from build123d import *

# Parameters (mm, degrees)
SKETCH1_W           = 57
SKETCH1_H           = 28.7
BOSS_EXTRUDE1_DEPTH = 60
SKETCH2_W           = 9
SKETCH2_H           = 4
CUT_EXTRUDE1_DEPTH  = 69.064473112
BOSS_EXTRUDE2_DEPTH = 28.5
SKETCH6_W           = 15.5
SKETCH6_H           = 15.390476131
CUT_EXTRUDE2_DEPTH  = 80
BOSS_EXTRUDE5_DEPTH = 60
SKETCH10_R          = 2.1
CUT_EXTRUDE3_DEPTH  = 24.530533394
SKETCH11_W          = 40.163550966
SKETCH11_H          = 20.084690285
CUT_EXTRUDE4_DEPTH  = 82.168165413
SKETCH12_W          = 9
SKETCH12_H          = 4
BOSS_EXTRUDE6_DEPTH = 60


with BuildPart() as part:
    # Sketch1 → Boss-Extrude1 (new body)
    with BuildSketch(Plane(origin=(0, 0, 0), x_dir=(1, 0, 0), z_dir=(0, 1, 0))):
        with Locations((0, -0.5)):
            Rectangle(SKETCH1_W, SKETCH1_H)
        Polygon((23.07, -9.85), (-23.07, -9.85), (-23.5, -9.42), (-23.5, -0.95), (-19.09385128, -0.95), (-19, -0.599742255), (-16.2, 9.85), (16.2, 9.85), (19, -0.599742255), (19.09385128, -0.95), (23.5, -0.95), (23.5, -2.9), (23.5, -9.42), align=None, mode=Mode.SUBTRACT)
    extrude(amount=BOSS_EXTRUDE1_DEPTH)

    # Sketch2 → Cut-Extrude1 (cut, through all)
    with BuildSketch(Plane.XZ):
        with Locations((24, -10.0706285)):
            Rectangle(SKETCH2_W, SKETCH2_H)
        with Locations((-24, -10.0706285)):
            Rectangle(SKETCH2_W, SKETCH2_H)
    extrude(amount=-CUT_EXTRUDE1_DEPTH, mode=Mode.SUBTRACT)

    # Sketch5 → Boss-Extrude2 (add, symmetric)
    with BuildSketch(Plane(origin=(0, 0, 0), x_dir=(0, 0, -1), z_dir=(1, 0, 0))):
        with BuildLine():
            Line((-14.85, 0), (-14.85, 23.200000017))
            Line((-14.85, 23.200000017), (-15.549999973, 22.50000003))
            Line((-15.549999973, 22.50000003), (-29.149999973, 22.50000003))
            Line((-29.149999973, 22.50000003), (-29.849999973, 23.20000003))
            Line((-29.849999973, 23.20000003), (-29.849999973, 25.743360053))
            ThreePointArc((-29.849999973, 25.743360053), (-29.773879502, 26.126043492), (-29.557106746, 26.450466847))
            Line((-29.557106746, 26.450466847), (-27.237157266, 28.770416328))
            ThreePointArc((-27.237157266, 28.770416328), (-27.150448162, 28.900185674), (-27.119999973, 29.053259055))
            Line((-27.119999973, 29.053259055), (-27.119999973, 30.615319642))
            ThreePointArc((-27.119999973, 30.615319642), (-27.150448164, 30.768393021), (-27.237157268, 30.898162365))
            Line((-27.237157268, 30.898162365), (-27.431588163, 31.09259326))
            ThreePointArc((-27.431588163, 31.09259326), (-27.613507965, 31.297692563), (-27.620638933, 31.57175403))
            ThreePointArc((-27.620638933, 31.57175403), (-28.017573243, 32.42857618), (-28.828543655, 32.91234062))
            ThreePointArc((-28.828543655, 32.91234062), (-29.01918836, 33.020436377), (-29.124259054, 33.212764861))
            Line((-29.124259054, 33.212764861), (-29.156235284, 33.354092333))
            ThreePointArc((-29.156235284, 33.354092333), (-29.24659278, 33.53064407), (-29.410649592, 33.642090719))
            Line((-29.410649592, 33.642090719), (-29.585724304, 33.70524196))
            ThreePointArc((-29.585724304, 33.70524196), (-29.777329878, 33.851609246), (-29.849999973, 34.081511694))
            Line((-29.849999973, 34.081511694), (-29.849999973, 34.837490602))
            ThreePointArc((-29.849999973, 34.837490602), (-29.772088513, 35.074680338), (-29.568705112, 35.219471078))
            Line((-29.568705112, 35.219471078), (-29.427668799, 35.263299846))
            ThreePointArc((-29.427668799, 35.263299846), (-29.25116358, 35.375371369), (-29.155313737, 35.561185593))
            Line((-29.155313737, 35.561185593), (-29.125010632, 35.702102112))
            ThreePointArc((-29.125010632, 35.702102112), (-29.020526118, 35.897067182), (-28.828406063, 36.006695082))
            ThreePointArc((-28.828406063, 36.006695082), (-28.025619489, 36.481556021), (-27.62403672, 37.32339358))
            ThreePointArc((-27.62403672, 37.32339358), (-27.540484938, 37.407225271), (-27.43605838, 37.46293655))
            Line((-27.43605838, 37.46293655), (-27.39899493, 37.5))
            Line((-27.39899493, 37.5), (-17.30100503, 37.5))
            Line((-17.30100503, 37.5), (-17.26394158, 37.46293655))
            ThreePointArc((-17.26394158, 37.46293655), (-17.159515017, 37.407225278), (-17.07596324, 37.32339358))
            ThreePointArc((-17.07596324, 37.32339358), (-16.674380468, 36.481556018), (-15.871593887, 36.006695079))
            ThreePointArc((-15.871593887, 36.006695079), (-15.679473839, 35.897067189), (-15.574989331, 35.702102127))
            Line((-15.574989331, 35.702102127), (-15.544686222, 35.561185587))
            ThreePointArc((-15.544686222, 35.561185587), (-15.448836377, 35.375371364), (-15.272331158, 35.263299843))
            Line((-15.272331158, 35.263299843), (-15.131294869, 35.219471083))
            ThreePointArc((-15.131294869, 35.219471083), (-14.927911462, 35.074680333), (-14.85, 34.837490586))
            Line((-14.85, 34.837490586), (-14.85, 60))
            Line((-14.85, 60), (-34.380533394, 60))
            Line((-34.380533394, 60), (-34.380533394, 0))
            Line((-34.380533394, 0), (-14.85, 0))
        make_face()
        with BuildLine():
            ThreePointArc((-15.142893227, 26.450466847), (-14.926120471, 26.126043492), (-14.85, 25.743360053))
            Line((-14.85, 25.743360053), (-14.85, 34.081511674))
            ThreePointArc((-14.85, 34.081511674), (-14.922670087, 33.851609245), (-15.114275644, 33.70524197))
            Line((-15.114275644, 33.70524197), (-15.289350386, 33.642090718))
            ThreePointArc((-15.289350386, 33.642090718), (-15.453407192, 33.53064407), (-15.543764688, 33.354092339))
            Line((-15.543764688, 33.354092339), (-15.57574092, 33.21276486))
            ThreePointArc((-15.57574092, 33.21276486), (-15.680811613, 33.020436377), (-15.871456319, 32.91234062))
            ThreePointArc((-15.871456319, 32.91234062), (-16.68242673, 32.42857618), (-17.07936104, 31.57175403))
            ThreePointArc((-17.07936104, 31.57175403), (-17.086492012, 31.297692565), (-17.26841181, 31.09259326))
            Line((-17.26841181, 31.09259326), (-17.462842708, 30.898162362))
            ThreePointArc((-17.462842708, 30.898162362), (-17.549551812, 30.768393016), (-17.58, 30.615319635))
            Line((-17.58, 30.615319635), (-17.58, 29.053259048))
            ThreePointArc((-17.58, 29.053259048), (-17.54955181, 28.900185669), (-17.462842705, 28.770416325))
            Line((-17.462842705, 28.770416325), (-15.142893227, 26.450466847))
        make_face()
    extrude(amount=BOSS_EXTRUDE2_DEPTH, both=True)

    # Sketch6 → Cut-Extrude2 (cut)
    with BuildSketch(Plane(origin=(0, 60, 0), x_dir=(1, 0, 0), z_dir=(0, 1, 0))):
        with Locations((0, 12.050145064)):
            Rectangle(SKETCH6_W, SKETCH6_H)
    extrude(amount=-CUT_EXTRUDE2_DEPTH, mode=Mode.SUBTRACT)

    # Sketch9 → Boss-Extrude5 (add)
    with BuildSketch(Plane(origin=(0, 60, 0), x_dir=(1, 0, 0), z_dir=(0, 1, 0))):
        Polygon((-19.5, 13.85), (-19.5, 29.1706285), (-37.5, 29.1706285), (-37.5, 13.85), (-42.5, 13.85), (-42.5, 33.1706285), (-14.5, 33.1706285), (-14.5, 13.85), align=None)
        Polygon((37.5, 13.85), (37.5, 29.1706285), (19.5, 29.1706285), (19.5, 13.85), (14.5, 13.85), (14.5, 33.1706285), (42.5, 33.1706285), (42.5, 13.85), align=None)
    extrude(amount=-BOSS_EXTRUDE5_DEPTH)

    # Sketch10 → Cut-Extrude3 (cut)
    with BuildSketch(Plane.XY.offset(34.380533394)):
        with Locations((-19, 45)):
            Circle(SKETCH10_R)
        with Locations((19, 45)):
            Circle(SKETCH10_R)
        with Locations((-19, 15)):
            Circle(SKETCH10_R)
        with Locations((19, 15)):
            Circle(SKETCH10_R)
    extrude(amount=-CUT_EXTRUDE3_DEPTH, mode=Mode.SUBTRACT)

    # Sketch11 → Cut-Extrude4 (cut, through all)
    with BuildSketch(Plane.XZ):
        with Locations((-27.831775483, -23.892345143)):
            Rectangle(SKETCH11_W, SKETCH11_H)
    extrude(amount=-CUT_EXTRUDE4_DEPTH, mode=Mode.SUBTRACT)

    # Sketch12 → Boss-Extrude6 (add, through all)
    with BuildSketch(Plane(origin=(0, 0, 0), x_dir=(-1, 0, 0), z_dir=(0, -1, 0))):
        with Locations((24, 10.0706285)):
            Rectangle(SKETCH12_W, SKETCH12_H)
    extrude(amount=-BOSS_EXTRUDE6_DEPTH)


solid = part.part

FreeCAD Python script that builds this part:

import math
import FreeCAD as App
import Part
import Sketcher

V = App.Vector
Q = App.Units.Quantity

doc = App.newDocument("Part")
body = doc.addObject("PartDesign::Body", "Body")

# Sketch on XZ plane
sketch1 = body.newObject("Sketcher::SketchObject", "Sketch")
sketch1.AttachmentSupport = (doc.getObject("XZ_Plane"), [""])
sketch1.MapMode = "FlatFace"
sketch1.addGeometry([
    Part.LineSegment(V(-28.5, -13.85, 0), V(-28.5, 14.85, 0)),  # 0
    Part.LineSegment(V(-28.5, 14.85, 0), V(28.5, 14.85, 0)),  # 1
    Part.LineSegment(V(28.5, 14.85, 0), V(28.5, -13.85, 0)),  # 2
    Part.LineSegment(V(28.5, -13.85, 0), V(-28.5, -13.85, 0)),  # 3
    Part.LineSegment(V(23.5, 9.42, 0), V(23.07, 9.85, 0)),  # 4
    Part.LineSegment(V(23.07, 9.85, 0), V(-23.07, 9.85, 0)),  # 5
    Part.LineSegment(V(-23.07, 9.85, 0), V(-23.5, 9.42, 0)),  # 6
    Part.LineSegment(V(-23.5, 9.42, 0), V(-23.5, 0.95, 0)),  # 7
    Part.LineSegment(V(-23.5, 0.95, 0), V(-19.093851, 0.95, 0)),  # 8
    Part.LineSegment(V(-19.093851, 0.95, 0), V(-19, 0.599742, 0)),  # 9
    Part.LineSegment(V(-19, 0.599742, 0), V(-16.2, -9.85, 0)),  # 10
    Part.LineSegment(V(-16.2, -9.85, 0), V(16.2, -9.85, 0)),  # 11
    Part.LineSegment(V(16.2, -9.85, 0), V(19, 0.599742, 0)),  # 12
    Part.LineSegment(V(19, 0.599742, 0), V(19.093851, 0.95, 0)),  # 13
    Part.LineSegment(V(19.093851, 0.95, 0), V(23.5, 0.95, 0)),  # 14
    Part.LineSegment(V(23.5, 0.95, 0), V(23.5, 9.42, 0)),  # 15
], False)
sketch1.addConstraint([
    Sketcher.Constraint("Coincident", 0, 2, 1, 1),
    Sketcher.Constraint("Coincident", 1, 2, 2, 1),
    Sketcher.Constraint("Coincident", 2, 2, 3, 1),
    Sketcher.Constraint("Coincident", 3, 2, 0, 1),
    Sketcher.Constraint("Coincident", 4, 2, 5, 1),
    Sketcher.Constraint("Coincident", 5, 2, 6, 1),
    Sketcher.Constraint("Coincident", 6, 2, 7, 1),
    Sketcher.Constraint("Coincident", 7, 2, 8, 1),
    Sketcher.Constraint("Coincident", 8, 2, 9, 1),
    Sketcher.Constraint("Coincident", 9, 2, 10, 1),
    Sketcher.Constraint("Coincident", 10, 2, 11, 1),
    Sketcher.Constraint("Coincident", 11, 2, 12, 1),
    Sketcher.Constraint("Coincident", 12, 2, 13, 1),
    Sketcher.Constraint("Coincident", 13, 2, 14, 1),
    Sketcher.Constraint("Coincident", 14, 2, 15, 1),
    Sketcher.Constraint("Coincident", 15, 2, 4, 1),
    Sketcher.Constraint("Vertical", 0),
    Sketcher.Constraint("Horizontal", 1),
    Sketcher.Constraint("Vertical", 2),
    Sketcher.Constraint("Horizontal", 3),
    Sketcher.Constraint("Horizontal", 5),
    Sketcher.Constraint("Vertical", 7),
    Sketcher.Constraint("Horizontal", 8),
    Sketcher.Constraint("Horizontal", 11),
    Sketcher.Constraint("Horizontal", 14),
    Sketcher.Constraint("Vertical", 15),
    Sketcher.Constraint("Symmetric", 9, 2, 12, 2, -2),
    Sketcher.Constraint("Symmetric", 8, 2, 13, 2, -2),
    Sketcher.Constraint("Symmetric", 6, 2, 15, 2, -2),
    Sketcher.Constraint("Perpendicular", 4, 6),
    Sketcher.Constraint("Parallel", 9, 10),
    Sketcher.Constraint("Parallel", 12, 13),
    Sketcher.Constraint("Equal", 4, 6),
    Sketcher.Constraint("DistanceX", 1, 1, 1, 2, 57.0),
    Sketcher.Constraint("Angle", 9, Q("-75 deg")),
    Sketcher.Constraint("DistanceX", 11, 1, 11, 2, 32.4),
    Sketcher.Constraint("DistanceY", 0, 1, 0, 2, 28.7),
    Sketcher.Constraint("DistanceX", 9, 2, -1, 1, 19.0),
    Sketcher.Constraint("DistanceY", 4, 2, 1, 2, 5.0),
    Sketcher.Constraint("DistanceX", 0, 2, 6, 2, 5.0),
    Sketcher.Constraint("DistanceY", 3, 2, 10, 2, 4.0),
    Sketcher.Constraint("DistanceX", 14, 2, 1, 2, 5.0),
    Sketcher.Constraint("DistanceX", 5, 2, 5, 1, 46.14),
    Sketcher.Constraint("DistanceY", 7, 2, 7, 1, 8.47),
    Sketcher.Constraint("DistanceY", -1, 1, 0, 2, 14.85),
])
pad1 = body.newObject("PartDesign::Pad", "Pad")
pad1.Profile = sketch1
pad1.Length = 60
pad1.Reversed = True

# Sketch on XZ plane
sketch2 = body.newObject("Sketcher::SketchObject", "Sketch001")
sketch2.AttachmentSupport = (doc.getObject("XZ_Plane"), [""])
sketch2.MapMode = "FlatFace"
sketch2.addGeometry([
    Part.LineSegment(V(19.5, -8.070628, 0), V(19.5, -12.070628, 0)),  # 0
    Part.LineSegment(V(19.5, -12.070628, 0), V(28.5, -12.070628, 0)),  # 1
    Part.LineSegment(V(28.5, -12.070628, 0), V(28.5, -8.070628, 0)),  # 2
    Part.LineSegment(V(28.5, -8.070628, 0), V(19.5, -8.070628, 0)),  # 3
    Part.LineSegment(V(-28.5, -8.070628, 0), V(-28.5, -12.070628, 0)),  # 4
    Part.LineSegment(V(-28.5, -12.070628, 0), V(-19.5, -12.070628, 0)),  # 5
    Part.LineSegment(V(-19.5, -12.070628, 0), V(-19.5, -8.070628, 0)),  # 6
    Part.LineSegment(V(-19.5, -8.070628, 0), V(-28.5, -8.070628, 0)),  # 7
], False)
sketch2.addConstraint([
    Sketcher.Constraint("Coincident", 0, 2, 1, 1),
    Sketcher.Constraint("Coincident", 1, 2, 2, 1),
    Sketcher.Constraint("Coincident", 2, 2, 3, 1),
    Sketcher.Constraint("Coincident", 3, 2, 0, 1),
    Sketcher.Constraint("Coincident", 4, 2, 5, 1),
    Sketcher.Constraint("Coincident", 5, 2, 6, 1),
    Sketcher.Constraint("Coincident", 6, 2, 7, 1),
    Sketcher.Constraint("Coincident", 7, 2, 4, 1),
    Sketcher.Constraint("Vertical", 0),
    Sketcher.Constraint("Horizontal", 1),
    Sketcher.Constraint("Vertical", 2),
    Sketcher.Constraint("Horizontal", 3),
    Sketcher.Constraint("Vertical", 4),
    Sketcher.Constraint("Horizontal", 5),
    Sketcher.Constraint("Vertical", 6),
    Sketcher.Constraint("Horizontal", 7),
    Sketcher.Constraint("Symmetric", 1, 2, 4, 2, -2),
    Sketcher.Constraint("Symmetric", 3, 2, 6, 2, -2),
    Sketcher.Constraint("DistanceX", 1, 1, 1, 2, 9.0),
    Sketcher.Constraint("DistanceY", 0, 2, 0, 1, 4.0),
    Sketcher.Constraint("DistanceX", 4, 2, 0, 2, 48.0),
    Sketcher.Constraint("DistanceY", 0, 2, -1, 1, 12.070628),
])
pocket1 = body.newObject("PartDesign::Pocket", "Pocket")
pocket1.Profile = sketch2
pocket1.Type = "ThroughAll"

# Sketch on YZ plane
sketch3 = body.newObject("Sketcher::SketchObject", "Sketch002")
sketch3.AttachmentSupport = (doc.getObject("YZ_Plane"), [""])
sketch3.MapMode = "FlatFace"
sketch3.addGeometry([
    Part.LineSegment(V(0, 14.85, 0), V(23.2, 14.85, 0)),  # 0
    Part.LineSegment(V(23.2, 14.85, 0), V(22.5, 15.55, 0)),  # 1
    Part.LineSegment(V(22.5, 15.55, 0), V(22.5, 29.15, 0)),  # 2
    Part.LineSegment(V(22.5, 29.15, 0), V(23.2, 29.85, 0)),  # 3
    Part.LineSegment(V(23.2, 29.85, 0), V(25.74336, 29.85, 0)),  # 4
    Part.ArcOfCircle(Part.Circle(V(25.74336, 28.85, 0), V(0, 0, 1), 1), math.radians(45), math.radians(90)),  # 5
    Part.LineSegment(V(26.450467, 29.557107, 0), V(28.770416, 27.237157, 0)),  # 6
    Part.ArcOfCircle(Part.Circle(V(29.053259, 27.52, 0), V(0, 0, 1), 0.4), math.radians(-134.999999), math.radians(-90)),  # 7
    Part.LineSegment(V(29.053259, 27.12, 0), V(30.61532, 27.12, 0)),  # 8
    Part.ArcOfCircle(Part.Circle(V(30.61532, 27.52, 0), V(0, 0, 1), 0.4), math.radians(-89.999999), math.radians(-45)),  # 9
    Part.LineSegment(V(30.898162, 27.237157, 0), V(31.092593, 27.431588, 0)),  # 10
    Part.ArcOfCircle(Part.Circle(V(31.444498, 27.241422, 0), V(0, 0, 1), 0.4), math.radians(71.449458), math.radians(151.613531)),  # 11
    Part.ArcOfCircle(Part.Circle(V(31.357558, 29.206237, 0), V(0, 0, 1), 1.6), math.radians(-82.306584), math.radians(-13.654005)),  # 12
    Part.ArcOfCircle(Part.Circle(V(33.301036, 28.73412, 0), V(0, 0, 1), 0.4), math.radians(102.748877), math.radians(166.345995)),  # 13
    Part.LineSegment(V(33.212765, 29.124259, 0), V(33.354092, 29.156235, 0)),  # 14
    Part.ArcOfCircle(Part.Circle(V(33.265821, 29.546374, 0), V(0, 0, 1), 0.4), math.radians(-77.251124), math.radians(-19.834892)),  # 15
    Part.LineSegment(V(33.642091, 29.41065, 0), V(33.705242, 29.585724, 0)),  # 16
    Part.ArcOfCircle(Part.Circle(V(34.081512, 29.45, 0), V(0, 0, 1), 0.4), math.radians(90), math.radians(160.165107)),  # 17
    Part.LineSegment(V(34.081512, 29.85, 0), V(34.837491, 29.85, 0)),  # 18
    Part.ArcOfCircle(Part.Circle(V(34.837491, 29.45, 0), V(0, 0, 1), 0.4), math.radians(17.263274), math.radians(90)),  # 19
    Part.LineSegment(V(35.219471, 29.568705, 0), V(35.2633, 29.427669, 0)),  # 20
    Part.ArcOfCircle(Part.Circle(V(35.64528, 29.546374, 0), V(0, 0, 1), 0.4), math.radians(-162.736725), math.radians(-102.136233)),  # 21
    Part.LineSegment(V(35.561186, 29.155314, 0), V(35.702102, 29.125011, 0)),  # 22
    Part.ArcOfCircle(Part.Circle(V(35.618007, 28.73395, 0), V(0, 0, 1), 0.4), math.radians(13.658778), math.radians(77.863766)),  # 23
    Part.ArcOfCircle(Part.Circle(V(37.561446, 29.206229, 0), V(0, 0, 1), 1.6), math.radians(-166.341223), math.radians(-98.556389)),  # 24
    Part.ArcOfCircle(Part.Circle(V(37.086047, 27.302063, 0), V(0, 0, 1), 0.4), math.radians(19.571789), math.radians(53.603822)),  # 25
    Part.LineSegment(V(37.462937, 27.436058, 0), V(37.5, 27.398995, 0)),  # 26
    Part.LineSegment(V(37.5, 27.398995, 0), V(37.5, 17.301005, 0)),  # 27
    Part.LineSegment(V(37.5, 17.301005, 0), V(37.462937, 17.263942, 0)),  # 28
    Part.ArcOfCircle(Part.Circle(V(37.086048, 17.397937, 0), V(0, 0, 1), 0.4), math.radians(-53.60383), math.radians(-19.571781)),  # 29
    Part.ArcOfCircle(Part.Circle(V(37.561446, 15.493771, 0), V(0, 0, 1), 1.6), math.radians(98.556389), math.radians(166.341224)),  # 30
    Part.ArcOfCircle(Part.Circle(V(35.618007, 15.96605, 0), V(0, 0, 1), 0.4), math.radians(-77.863767), math.radians(-13.658776)),  # 31
    Part.LineSegment(V(35.702102, 15.574989, 0), V(35.561186, 15.544686, 0)),  # 32
    Part.ArcOfCircle(Part.Circle(V(35.64528, 15.153626, 0), V(0, 0, 1), 0.4), math.radians(102.136234), math.radians(162.736725)),  # 33
    Part.LineSegment(V(35.2633, 15.272331, 0), V(35.219471, 15.131295, 0)),  # 34
    Part.ArcOfCircle(Part.Circle(V(34.837491, 15.25, 0), V(0, 0, 1), 0.4), math.radians(-90), math.radians(-17.263276)),  # 35
    Part.LineSegment(V(34.837491, 14.85, 0), V(60, 14.85, 0)),  # 36
    Part.LineSegment(V(60, 14.85, 0), V(60, 34.380533, 0)),  # 37
    Part.LineSegment(V(60, 34.380533, 0), V(0, 34.380533, 0)),  # 38
    Part.LineSegment(V(0, 34.380533, 0), V(0, 14.85, 0)),  # 39
    Part.ArcOfCircle(Part.Circle(V(25.74336, 15.85, 0), V(0, 0, 1), 1), math.radians(-90), math.radians(-45)),  # 40
    Part.LineSegment(V(25.74336, 14.85, 0), V(34.081512, 14.85, 0)),  # 41
    Part.ArcOfCircle(Part.Circle(V(34.081512, 15.25, 0), V(0, 0, 1), 0.4), math.radians(-160.165107), math.radians(-89.999999)),  # 42
    Part.LineSegment(V(33.705242, 15.114276, 0), V(33.642091, 15.28935, 0)),  # 43
    Part.ArcOfCircle(Part.Circle(V(33.265821, 15.153626, 0), V(0, 0, 1), 0.4), math.radians(19.834894), math.radians(77.251123)),  # 44
    Part.LineSegment(V(33.354092, 15.543765, 0), V(33.212765, 15.575741, 0)),  # 45
    Part.ArcOfCircle(Part.Circle(V(33.301036, 15.96588, 0), V(0, 0, 1), 0.4), math.radians(-166.345996), math.radians(-102.748877)),  # 46
    Part.ArcOfCircle(Part.Circle(V(31.357558, 15.493763, 0), V(0, 0, 1), 1.6), math.radians(13.654005), math.radians(82.306584)),  # 47
    Part.ArcOfCircle(Part.Circle(V(31.444498, 17.458578, 0), V(0, 0, 1), 0.4), math.radians(-151.613529), math.radians(-71.44946)),  # 48
    Part.LineSegment(V(31.092593, 17.268412, 0), V(30.898162, 17.462843, 0)),  # 49
    Part.ArcOfCircle(Part.Circle(V(30.61532, 17.18, 0), V(0, 0, 1), 0.4), math.radians(45), math.radians(90)),  # 50
    Part.LineSegment(V(30.61532, 17.58, 0), V(29.053259, 17.58, 0)),  # 51
    Part.ArcOfCircle(Part.Circle(V(29.053259, 17.18, 0), V(0, 0, 1), 0.4), math.radians(90.000001), math.radians(135)),  # 52
    Part.LineSegment(V(28.770416, 17.462843, 0), V(26.450467, 15.142893, 0)),  # 53
], False)
sketch3.addConstraint([
    Sketcher.Constraint("Coincident", 0, 2, 1, 1),
    Sketcher.Constraint("Coincident", 1, 2, 2, 1),
    Sketcher.Constraint("Coincident", 2, 2, 3, 1),
    Sketcher.Constraint("Coincident", 3, 2, 4, 1),
    Sketcher.Constraint("Coincident", 4, 2, 5, 2),
    Sketcher.Constraint("Coincident", 5, 1, 6, 1),
    Sketcher.Constraint("Coincident", 6, 2, 7, 1),
    Sketcher.Constraint("Coincident", 7, 2, 8, 1),
    Sketcher.Constraint("Coincident", 8, 2, 9, 1),
    Sketcher.Constraint("Coincident", 9, 2, 10, 1),
    Sketcher.Constraint("Coincident", 10, 2, 11, 2),
    Sketcher.Constraint("Coincident", 11, 1, 12, 1),
    Sketcher.Constraint("Coincident", 12, 2, 13, 2),
    Sketcher.Constraint("Coincident", 13, 1, 14, 1),
    Sketcher.Constraint("Coincident", 14, 2, 15, 1),
    Sketcher.Constraint("Coincident", 15, 2, 16, 1),
    Sketcher.Constraint("Coincident", 16, 2, 17, 2),
    Sketcher.Constraint("Coincident", 17, 1, 18, 1),
    Sketcher.Constraint("Coincident", 18, 2, 19, 2),
    Sketcher.Constraint("Coincident", 19, 1, 20, 1),
    Sketcher.Constraint("Coincident", 20, 2, 21, 1),
    Sketcher.Constraint("Coincident", 21, 2, 22, 1),
    Sketcher.Constraint("Coincident", 22, 2, 23, 2),
    Sketcher.Constraint("Coincident", 23, 1, 24, 1),
    Sketcher.Constraint("Coincident", 24, 2, 25, 2),
    Sketcher.Constraint("Coincident", 25, 1, 26, 1),
    Sketcher.Constraint("Coincident", 26, 2, 27, 1),
    Sketcher.Constraint("Coincident", 27, 2, 28, 1),
    Sketcher.Constraint("Coincident", 28, 2, 29, 2),
    Sketcher.Constraint("Coincident", 29, 1, 30, 1),
    Sketcher.Constraint("Coincident", 30, 2, 31, 2),
    Sketcher.Constraint("Coincident", 31, 1, 32, 1),
    Sketcher.Constraint("Coincident", 32, 2, 33, 1),
    Sketcher.Constraint("Coincident", 33, 2, 34, 1),
    Sketcher.Constraint("Coincident", 34, 2, 35, 2),
    Sketcher.Constraint("Coincident", 35, 1, 36, 1),
    Sketcher.Constraint("Coincident", 36, 2, 37, 1),
    Sketcher.Constraint("Coincident", 37, 2, 38, 1),
    Sketcher.Constraint("Coincident", 38, 2, 39, 1),
    Sketcher.Constraint("Coincident", 39, 2, 0, 1),
    Sketcher.Constraint("Coincident", 40, 1, 41, 1),
    Sketcher.Constraint("Coincident", 41, 2, 42, 2),
    Sketcher.Constraint("Coincident", 42, 1, 43, 1),
    Sketcher.Constraint("Coincident", 43, 2, 44, 1),
    Sketcher.Constraint("Coincident", 44, 2, 45, 1),
    Sketcher.Constraint("Coincident", 45, 2, 46, 2),
    Sketcher.Constraint("Coincident", 46, 1, 47, 1),
    Sketcher.Constraint("Coincident", 47, 2, 48, 2),
    Sketcher.Constraint("Coincident", 48, 1, 49, 1),
    Sketcher.Constraint("Coincident", 49, 2, 50, 1),
    Sketcher.Constraint("Coincident", 50, 2, 51, 1),
    Sketcher.Constraint("Coincident", 51, 2, 52, 1),
    Sketcher.Constraint("Coincident", 52, 2, 53, 1),
    Sketcher.Constraint("Coincident", 53, 2, 40, 2),
    Sketcher.Constraint("Horizontal", 0),
    Sketcher.Constraint("Vertical", 2),
    Sketcher.Constraint("Horizontal", 4),
    Sketcher.Constraint("Horizontal", 8),
    Sketcher.Constraint("Horizontal", 18),
    Sketcher.Constraint("Vertical", 27),
    Sketcher.Constraint("Horizontal", 36),
    Sketcher.Constraint("Vertical", 37),
    Sketcher.Constraint("Horizontal", 38),
    Sketcher.Constraint("Vertical", 39),
    Sketcher.Constraint("Horizontal", 41),
    Sketcher.Constraint("Horizontal", 51),
    Sketcher.Constraint("PointOnObject", 38, 2, -2),
    Sketcher.Constraint("Radius", 5, 1.0),
    Sketcher.Constraint("Radius", 40, 1.0),
    Sketcher.Constraint("Radius", 7, 0.4),
    Sketcher.Constraint("Radius", 9, 0.4),
    Sketcher.Constraint("Radius", 11, 0.4),
    Sketcher.Constraint("Radius", 12, 1.6),
    Sketcher.Constraint("Radius", 13, 0.4),
    Sketcher.Constraint("Radius", 15, 0.4),
    Sketcher.Constraint("Radius", 17, 0.4),
    Sketcher.Constraint("Radius", 19, 0.4),
    Sketcher.Constraint("Radius", 21, 0.4),
    Sketcher.Constraint("Radius", 23, 0.4),
    Sketcher.Constraint("Radius", 24, 1.6),
    Sketcher.Constraint("Radius", 25, 0.4),
    Sketcher.Constraint("Radius", 29, 0.4),
    Sketcher.Constraint("Radius", 30, 1.6),
    Sketcher.Constraint("Radius", 31, 0.4),
    Sketcher.Constraint("Radius", 33, 0.4),
    Sketcher.Constraint("Radius", 35, 0.4),
    Sketcher.Constraint("Radius", 42, 0.4),
    Sketcher.Constraint("Radius", 44, 0.4),
    Sketcher.Constraint("Radius", 46, 0.4),
    Sketcher.Constraint("Radius", 47, 1.6),
    Sketcher.Constraint("Radius", 48, 0.4),
    Sketcher.Constraint("Radius", 50, 0.4),
    Sketcher.Constraint("Radius", 52, 0.4),
    Sketcher.Constraint("DistanceX", 38, 2, 38, 1, 60.0),
    Sketcher.Constraint("DistanceX", 0, 1, 0, 2, 23.2),
    Sketcher.Constraint("DistanceY", 2, 1, 2, 2, 13.6),
    Sketcher.Constraint("DistanceX", -1, 1, 1, 2, 22.5),
    Sketcher.Constraint("DistanceX", -1, 1, 3, 2, 23.2),
    Sketcher.Constraint("DistanceX", -1, 1, 26, 2, 37.5),
    Sketcher.Constraint("DistanceY", -1, 1, 5, 3, 28.85),
    Sketcher.Constraint("DistanceY", -1, 1, 7, 3, 27.52),
    Sketcher.Constraint("DistanceY", -1, 1, 17, 3, 29.45),
    Sketcher.Constraint("DistanceY", -1, 1, 35, 3, 15.25),
    Sketcher.Constraint("DistanceY", -1, 1, 40, 3, 15.85),
    Sketcher.Constraint("DistanceY", -1, 1, 50, 3, 17.18),
    Sketcher.Constraint("DistanceY", -1, 1, 0, 2, 14.85),
    Sketcher.Constraint("DistanceY", -1, 1, 1, 2, 15.55),
    Sketcher.Constraint("Distance", 14, 0.1449),
    Sketcher.Constraint("Distance", 45, 0.1449),
    Sketcher.Constraint("DistanceX", 4, 1, 4, 2, 2.54336),
    Sketcher.Constraint("DistanceX", 8, 1, 8, 2, 1.562061),
    Sketcher.Constraint("DistanceX", 18, 1, 18, 2, 0.755979),
    Sketcher.Constraint("DistanceX", 36, 1, 36, 2, 25.162509),
    Sketcher.Constraint("DistanceX", 41, 1, 41, 2, 8.338152),
    Sketcher.Constraint("DistanceX", 51, 2, 51, 1, 1.562061),
    Sketcher.Constraint("DistanceY", 27, 2, 27, 1, 10.09799),
    Sketcher.Constraint("DistanceX", -1, 1, 20, 2, 35.2633),
    Sketcher.Constraint("DistanceX", -1, 1, 33, 2, 35.2633),
    Sketcher.Constraint("Distance", 20, 0.14769),
    Sketcher.Constraint("Distance", 34, 0.14769),
    Sketcher.Constraint("DistanceY", 37, 1, 37, 2, 19.530533),
    Sketcher.Constraint("DistanceX", -1, 1, 5, 3, 25.74336),
    Sketcher.Constraint("DistanceX", -1, 1, 7, 3, 29.053259),
    Sketcher.Constraint("DistanceX", -1, 1, 9, 3, 30.61532),
    Sketcher.Constraint("DistanceY", -1, 1, 11, 3, 27.241422),
    Sketcher.Constraint("DistanceX", -1, 1, 12, 3, 31.357558),
    Sketcher.Constraint("DistanceY", -1, 1, 13, 3, 28.73412),
    Sketcher.Constraint("DistanceX", -1, 1, 15, 3, 33.265821),
    Sketcher.Constraint("DistanceX", -1, 1, 17, 3, 34.081512),
    Sketcher.Constraint("DistanceX", -1, 1, 19, 3, 34.837491),
    Sketcher.Constraint("DistanceX", -1, 1, 21, 3, 35.64528),
    Sketcher.Constraint("DistanceY", -1, 1, 23, 3, 28.73395),
    Sketcher.Constraint("DistanceY", -1, 1, 24, 3, 29.206229),
    Sketcher.Constraint("DistanceY", -1, 1, 30, 3, 15.493771),
    Sketcher.Constraint("DistanceY", -1, 1, 31, 3, 15.96605),
    Sketcher.Constraint("DistanceX", -1, 1, 33, 3, 35.64528),
    Sketcher.Constraint("DistanceX", -1, 1, 35, 3, 34.837491),
    Sketcher.Constraint("DistanceX", -1, 1, 40, 3, 25.74336),
    Sketcher.Constraint("DistanceX", -1, 1, 42, 3, 34.081512),
    Sketcher.Constraint("DistanceX", -1, 1, 44, 3, 33.265821),
    Sketcher.Constraint("DistanceY", -1, 1, 46, 3, 15.96588),
    Sketcher.Constraint("DistanceX", -1, 1, 47, 3, 31.357558),
    Sketcher.Constraint("DistanceY", -1, 1, 48, 3, 17.458578),
    Sketcher.Constraint("DistanceX", -1, 1, 50, 3, 30.61532),
    Sketcher.Constraint("DistanceX", -1, 1, 52, 3, 29.053259),
    Sketcher.Constraint("DistanceX", -1, 1, 7, 2, 29.053259),
    Sketcher.Constraint("DistanceY", -1, 1, 10, 2, 27.431588),
    Sketcher.Constraint("DistanceY", -1, 1, 11, 1, 27.620639),
    Sketcher.Constraint("DistanceX", -1, 1, 12, 2, 32.912341),
    Sketcher.Constraint("DistanceY", -1, 1, 13, 1, 29.124259),
    Sketcher.Constraint("DistanceX", -1, 1, 15, 2, 33.642091),
    Sketcher.Constraint("DistanceY", -1, 1, 15, 2, 29.41065),
    Sketcher.Constraint("DistanceX", -1, 1, 16, 2, 33.705242),
    Sketcher.Constraint("DistanceX", -1, 1, 17, 1, 34.081512),
    Sketcher.Constraint("DistanceX", -1, 1, 19, 1, 35.219471),
    Sketcher.Constraint("DistanceY", -1, 1, 22, 2, 29.125011),
    Sketcher.Constraint("DistanceY", -1, 1, 25, 1, 27.436058),
    Sketcher.Constraint("DistanceY", -1, 1, 28, 2, 17.263942),
    Sketcher.Constraint("DistanceY", -1, 1, 31, 1, 15.574989),
    Sketcher.Constraint("DistanceY", -1, 1, 33, 2, 15.272331),
    Sketcher.Constraint("DistanceX", -1, 1, 40, 1, 25.74336),
    Sketcher.Constraint("DistanceX", -1, 1, 42, 1, 33.705242),
    Sketcher.Constraint("DistanceX", -1, 1, 43, 2, 33.642091),
    Sketcher.Constraint("DistanceY", -1, 1, 43, 2, 15.28935),
    Sketcher.Constraint("DistanceY", -1, 1, 45, 2, 15.575741),
    Sketcher.Constraint("DistanceX", -1, 1, 46, 1, 32.912341),
    Sketcher.Constraint("DistanceY", -1, 1, 47, 2, 17.079361),
    Sketcher.Constraint("DistanceY", -1, 1, 48, 1, 17.268412),
    Sketcher.Constraint("DistanceX", -1, 1, 50, 2, 30.61532),
    Sketcher.Constraint("Distance", 6, 3.280904),
    Sketcher.Constraint("Distance", 10, 0.274967),
    Sketcher.Constraint("Distance", 22, 0.144138),
    Sketcher.Constraint("Distance", 26, 0.052416),
    Sketcher.Constraint("Distance", 28, 0.052416),
    Sketcher.Constraint("Distance", 32, 0.144138),
    Sketcher.Constraint("Distance", 49, 0.274967),
    Sketcher.Constraint("Distance", 53, 3.280904),
    Sketcher.Constraint("DistanceX", -1, 1, 11, 3, 31.444498),
    Sketcher.Constraint("DistanceX", -1, 1, 23, 3, 35.618007),
    Sketcher.Constraint("DistanceX", -1, 1, 25, 3, 37.086047),
    Sketcher.Constraint("DistanceY", -1, 1, 25, 3, 27.302063),
    Sketcher.Constraint("DistanceX", -1, 1, 29, 3, 37.086048),
    Sketcher.Constraint("DistanceX", -1, 1, 30, 3, 37.561446),
    Sketcher.Constraint("DistanceX", -1, 1, 46, 3, 33.301036),
    Sketcher.Constraint("DistanceX", -1, 1, 5, 1, 26.450467),
    Sketcher.Constraint("DistanceX", -1, 1, 23, 1, 36.006695),
    Sketcher.Constraint("DistanceX", -1, 1, 30, 2, 36.006695),
    Sketcher.Constraint("DistanceX", -1, 1, 52, 2, 28.770416),
])
pad2 = body.newObject("PartDesign::Pad", "Pad001")
pad2.Profile = sketch3
pad2.Length = 57
pad2.Midplane = True

# Sketch on XZ plane
sketch4 = body.newObject("Sketcher::SketchObject", "Sketch003")
sketch4.AttachmentSupport = (doc.getObject("XZ_Plane"), [""])
sketch4.MapMode = "FlatFace"
sketch4.AttachmentOffset = App.Placement(V(0, 0, -60), App.Rotation())
sketch4.addGeometry([
    Part.LineSegment(V(-7.75, -19.745383, 0), V(-7.75, -4.354907, 0)),
    Part.LineSegment(V(-7.75, -4.354907, 0), V(7.75, -4.354907, 0)),
    Part.LineSegment(V(7.75, -4.354907, 0), V(7.75, -19.745383, 0)),
    Part.LineSegment(V(7.75, -19.745383, 0), V(-7.75, -19.745383, 0)),
], False)
sketch4.addConstraint([
    Sketcher.Constraint("Coincident", 0, 2, 1, 1),
    Sketcher.Constraint("Coincident", 1, 2, 2, 1),
    Sketcher.Constraint("Coincident", 2, 2, 3, 1),
    Sketcher.Constraint("Coincident", 3, 2, 0, 1),
    Sketcher.Constraint("Vertical", 0),
    Sketcher.Constraint("Horizontal", 1),
    Sketcher.Constraint("Vertical", 2),
    Sketcher.Constraint("Horizontal", 3),
    Sketcher.Constraint("DistanceX", 1, 1, 1, 2, 15.5),
    Sketcher.Constraint("DistanceX", 0, 2, -1, 1, 7.75),
    Sketcher.Constraint("DistanceY", 0, 1, 0, 2, 15.390476),
    Sketcher.Constraint("DistanceY", 0, 2, -1, 1, 4.354907),
])
pocket2 = body.newObject("PartDesign::Pocket", "Pocket001")
pocket2.Profile = sketch4
pocket2.Length = 80
pocket2.Reversed = True

# Sketch on XZ plane
sketch5 = body.newObject("Sketcher::SketchObject", "Sketch004")
sketch5.AttachmentSupport = (doc.getObject("XZ_Plane"), [""])
sketch5.MapMode = "FlatFace"
sketch5.AttachmentOffset = App.Placement(V(0, 0, -60), App.Rotation())
sketch5.addGeometry([
    Part.LineSegment(V(-19.5, -29.170628, 0), V(-19.5, -13.85, 0)),  # 0
    Part.LineSegment(V(-19.5, -13.85, 0), V(-14.5, -13.85, 0)),  # 1
    Part.LineSegment(V(-14.5, -13.85, 0), V(-14.5, -33.170628, 0)),  # 2
    Part.LineSegment(V(-14.5, -33.170628, 0), V(-42.5, -33.170628, 0)),  # 3
    Part.LineSegment(V(-42.5, -33.170628, 0), V(-42.5, -13.85, 0)),  # 4
    Part.LineSegment(V(-42.5, -13.85, 0), V(-37.5, -13.85, 0)),  # 5
    Part.LineSegment(V(-37.5, -13.85, 0), V(-37.5, -29.170628, 0)),  # 6
    Part.LineSegment(V(-37.5, -29.170628, 0), V(-19.5, -29.170628, 0)),  # 7
    Part.LineSegment(V(37.5, -29.170628, 0), V(37.5, -13.85, 0)),  # 8
    Part.LineSegment(V(37.5, -13.85, 0), V(42.5, -13.85, 0)),  # 9
    Part.LineSegment(V(42.5, -13.85, 0), V(42.5, -33.170628, 0)),  # 10
    Part.LineSegment(V(42.5, -33.170628, 0), V(14.5, -33.170628, 0)),  # 11
    Part.LineSegment(V(14.5, -33.170628, 0), V(14.5, -13.85, 0)),  # 12
    Part.LineSegment(V(14.5, -13.85, 0), V(19.5, -13.85, 0)),  # 13
    Part.LineSegment(V(19.5, -13.85, 0), V(19.5, -29.170628, 0)),  # 14
    Part.LineSegment(V(19.5, -29.170628, 0), V(37.5, -29.170628, 0)),  # 15
], False)
sketch5.addConstraint([
    Sketcher.Constraint("Coincident", 0, 2, 1, 1),
    Sketcher.Constraint("Coincident", 1, 2, 2, 1),
    Sketcher.Constraint("Coincident", 2, 2, 3, 1),
    Sketcher.Constraint("Coincident", 3, 2, 4, 1),
    Sketcher.Constraint("Coincident", 4, 2, 5, 1),
    Sketcher.Constraint("Coincident", 5, 2, 6, 1),
    Sketcher.Constraint("Coincident", 6, 2, 7, 1),
    Sketcher.Constraint("Coincident", 7, 2, 0, 1),
    Sketcher.Constraint("Coincident", 8, 2, 9, 1),
    Sketcher.Constraint("Coincident", 9, 2, 10, 1),
    Sketcher.Constraint("Coincident", 10, 2, 11, 1),
    Sketcher.Constraint("Coincident", 11, 2, 12, 1),
    Sketcher.Constraint("Coincident", 12, 2, 13, 1),
    Sketcher.Constraint("Coincident", 13, 2, 14, 1),
    Sketcher.Constraint("Coincident", 14, 2, 15, 1),
    Sketcher.Constraint("Coincident", 15, 2, 8, 1),
    Sketcher.Constraint("Vertical", 0),
    Sketcher.Constraint("Horizontal", 1),
    Sketcher.Constraint("Vertical", 2),
    Sketcher.Constraint("Horizontal", 3),
    Sketcher.Constraint("Vertical", 4),
    Sketcher.Constraint("Horizontal", 5),
    Sketcher.Constraint("Vertical", 6),
    Sketcher.Constraint("Horizontal", 7),
    Sketcher.Constraint("Vertical", 8),
    Sketcher.Constraint("Horizontal", 9),
    Sketcher.Constraint("Vertical", 10),
    Sketcher.Constraint("Horizontal", 11),
    Sketcher.Constraint("Vertical", 12),
    Sketcher.Constraint("Horizontal", 13),
    Sketcher.Constraint("Vertical", 14),
    Sketcher.Constraint("Horizontal", 15),
    Sketcher.Constraint("Symmetric", 5, 2, 8, 2, -2),
    Sketcher.Constraint("Symmetric", 3, 2, 10, 2, -2),
    Sketcher.Constraint("Symmetric", 1, 2, 12, 2, -2),
    Sketcher.Constraint("Symmetric", 7, 2, 14, 2, -2),
    Sketcher.Constraint("Horizontal", 1, 2, 4, 2),
    Sketcher.Constraint("Equal", 1, 5),
    Sketcher.Constraint("DistanceX", 1, 1, 1, 2, 5.0),
    Sketcher.Constraint("DistanceX", 3, 2, 3, 1, 28.0),
    Sketcher.Constraint("DistanceY", 3, 2, 6, 2, 4.0),
    Sketcher.Constraint("DistanceX", 1, 2, 8, 2, 52.0),
    Sketcher.Constraint("DistanceY", 0, 2, -1, 1, 13.85),
    Sketcher.Constraint("DistanceY", 0, 1, 0, 2, 15.320628),
])
pad3 = body.newObject("PartDesign::Pad", "Pad002")
pad3.Profile = sketch5
pad3.Length = 60

# Sketch on XY plane
sketch6 = body.newObject("Sketcher::SketchObject", "Sketch005")
sketch6.AttachmentSupport = (doc.getObject("XY_Plane"), [""])
sketch6.MapMode = "FlatFace"
sketch6.AttachmentOffset = App.Placement(V(0, 0, 34.380533), App.Rotation())
sketch6.addGeometry([
    Part.Circle(V(-19, 45, 0), V(0, 0, 1), 2.1),
    Part.Circle(V(19, 45, 0), V(0, 0, 1), 2.1),
    Part.Circle(V(-19, 15, 0), V(0, 0, 1), 2.1),
    Part.Circle(V(19, 15, 0), V(0, 0, 1), 2.1),
], False)
sketch6.addConstraint([
    Sketcher.Constraint("Equal", 0, 1),
    Sketcher.Constraint("Equal", 1, 2),
    Sketcher.Constraint("Equal", 2, 3),
    Sketcher.Constraint("Symmetric", 0, 3, 1, 3, -2),
    Sketcher.Constraint("Symmetric", 2, 3, 3, 3, -2),
    Sketcher.Constraint("Vertical", 0, 3, 2, 3),
    Sketcher.Constraint("Diameter", 0, 4.2),
    Sketcher.Constraint("DistanceX", 0, 3, -1, 1, 19.0),
    Sketcher.Constraint("DistanceY", -1, 1, 0, 3, 45.0),
    Sketcher.Constraint("DistanceY", -1, 1, 2, 3, 15.0),
])
pocket3 = body.newObject("PartDesign::Pocket", "Pocket002")
pocket3.Profile = sketch6
pocket3.Length = 24.530533

# Sketch on XZ plane
sketch7 = body.newObject("Sketcher::SketchObject", "Sketch006")
sketch7.AttachmentSupport = (doc.getObject("XZ_Plane"), [""])
sketch7.MapMode = "FlatFace"
sketch7.addGeometry([
    Part.LineSegment(V(-47.913551, -13.85, 0), V(-47.913551, -33.93469, 0)),
    Part.LineSegment(V(-47.913551, -33.93469, 0), V(-7.75, -33.93469, 0)),
    Part.LineSegment(V(-7.75, -33.93469, 0), V(-7.75, -13.85, 0)),
    Part.LineSegment(V(-7.75, -13.85, 0), V(-47.913551, -13.85, 0)),
], False)
sketch7.addConstraint([
    Sketcher.Constraint("Coincident", 0, 2, 1, 1),
    Sketcher.Constraint("Coincident", 1, 2, 2, 1),
    Sketcher.Constraint("Coincident", 2, 2, 3, 1),
    Sketcher.Constraint("Coincident", 3, 2, 0, 1),
    Sketcher.Constraint("Vertical", 0),
    Sketcher.Constraint("Horizontal", 1),
    Sketcher.Constraint("Vertical", 2),
    Sketcher.Constraint("Horizontal", 3),
    Sketcher.Constraint("DistanceX", 1, 2, -1, 1, 7.75),
    Sketcher.Constraint("DistanceY", 2, 2, -1, 1, 13.85),
    Sketcher.Constraint("DistanceX", 1, 1, 1, 2, 40.163551),
    Sketcher.Constraint("DistanceY", 0, 2, 0, 1, 20.08469),
])
pocket4 = body.newObject("PartDesign::Pocket", "Pocket003")
pocket4.Profile = sketch7
pocket4.Type = "ThroughAll"

# Sketch on XZ plane
sketch8 = body.newObject("Sketcher::SketchObject", "Sketch007")
sketch8.AttachmentSupport = (doc.getObject("XZ_Plane"), [""])
sketch8.MapMode = "FlatFace"
sketch8.addGeometry([
    Part.LineSegment(V(-19.5, -12.070628, 0), V(-19.5, -8.070628, 0)),
    Part.LineSegment(V(-19.5, -8.070628, 0), V(-28.5, -8.070628, 0)),
    Part.LineSegment(V(-28.5, -8.070628, 0), V(-28.5, -12.070628, 0)),
    Part.LineSegment(V(-28.5, -12.070628, 0), V(-19.5, -12.070628, 0)),
], False)
sketch8.addConstraint([
    Sketcher.Constraint("Coincident", 0, 2, 1, 1),
    Sketcher.Constraint("Coincident", 1, 2, 2, 1),
    Sketcher.Constraint("Coincident", 2, 2, 3, 1),
    Sketcher.Constraint("Coincident", 3, 2, 0, 1),
    Sketcher.Constraint("Vertical", 0),
    Sketcher.Constraint("Horizontal", 1),
    Sketcher.Constraint("Vertical", 2),
    Sketcher.Constraint("Horizontal", 3),
    Sketcher.Constraint("DistanceX", 1, 2, 1, 1, 9.0),
    Sketcher.Constraint("DistanceY", 0, 1, 0, 2, 4.0),
    Sketcher.Constraint("DistanceX", 0, 2, -1, 1, 19.5),
    Sketcher.Constraint("DistanceY", 0, 2, -1, 1, 8.070628),
])
pad4 = body.newObject("PartDesign::Pad", "Pad003")
pad4.Profile = sketch8
pad4.Length = 60
pad4.Reversed = True

doc.recompute()
